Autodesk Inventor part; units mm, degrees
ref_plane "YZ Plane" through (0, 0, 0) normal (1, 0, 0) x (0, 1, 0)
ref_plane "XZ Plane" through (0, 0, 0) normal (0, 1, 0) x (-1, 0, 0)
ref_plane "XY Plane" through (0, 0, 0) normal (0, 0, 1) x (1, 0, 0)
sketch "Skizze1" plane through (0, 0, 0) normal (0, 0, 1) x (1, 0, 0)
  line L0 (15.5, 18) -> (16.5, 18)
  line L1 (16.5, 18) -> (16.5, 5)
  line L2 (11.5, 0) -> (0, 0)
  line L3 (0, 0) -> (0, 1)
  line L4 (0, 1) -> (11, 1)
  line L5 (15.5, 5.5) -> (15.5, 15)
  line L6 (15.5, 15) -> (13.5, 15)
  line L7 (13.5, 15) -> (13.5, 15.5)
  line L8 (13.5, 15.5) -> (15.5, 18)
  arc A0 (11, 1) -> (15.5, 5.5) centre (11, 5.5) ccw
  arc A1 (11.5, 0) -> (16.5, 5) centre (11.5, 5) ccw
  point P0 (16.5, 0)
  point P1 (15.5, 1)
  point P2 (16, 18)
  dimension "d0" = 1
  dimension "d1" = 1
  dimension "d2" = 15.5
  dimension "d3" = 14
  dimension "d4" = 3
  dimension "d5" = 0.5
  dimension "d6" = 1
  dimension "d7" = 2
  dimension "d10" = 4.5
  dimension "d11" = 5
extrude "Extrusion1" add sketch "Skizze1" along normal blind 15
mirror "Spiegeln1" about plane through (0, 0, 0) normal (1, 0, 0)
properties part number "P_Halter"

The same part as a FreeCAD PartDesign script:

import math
import FreeCAD as App
import Part
import Sketcher

V = App.Vector
Q = App.Units.Quantity

doc = App.newDocument("Part")
params = doc.addObject("Spreadsheet::Sheet", "Params")
for row, (alias, value) in enumerate([
    ("sketch1_radius", "5 mm"),
    ("sketch1_radius2", "4.5 mm"),
    ("sketch1_width", "1 mm"),
    ("sketch1_width2", "2 mm"),
    ("sketch1_height", "0.5 mm"),
    ("pad1_length", "15 mm"),
], start=1):
    params.set(f"A{row}", alias)
    params.set(f"B{row}", "=" + value)
    params.setAlias(f"B{row}", alias)

body = doc.addObject("PartDesign::Body", "Body")

sketch1 = body.newObject("Sketcher::SketchObject", "Sketch")
sketch1.AttachmentSupport = (doc.getObject("XY_Plane"), [""])
sketch1.MapMode = "FlatFace"
sketch1.addGeometry(Part.LineSegment(V(16.5, 18, 0), V(15.5, 18, 0)), False)
sketch1.addGeometry(Part.LineSegment(V(15.5, 18, 0), V(13.5, 15.5, 0)), False)
sketch1.addGeometry(Part.LineSegment(V(13.5, 15.5, 0), V(13.5, 15, 0)), False)
sketch1.addGeometry(Part.LineSegment(V(13.5, 15, 0), V(15.5, 15, 0)), False)
sketch1.addGeometry(Part.LineSegment(V(15.5, 15, 0), V(15.5, 5.5, 0)), False)
sketch1.addGeometry(Part.ArcOfCircle(Part.Circle(V(11, 5.5, 0), V(0, 0, 1), 4.5), math.radians(-90), math.radians(0)), False)
sketch1.addGeometry(Part.LineSegment(V(11, 1, 0), V(0, 1, 0)), False)
sketch1.addGeometry(Part.LineSegment(V(0, 1, 0), V(0, 0, 0)), False)
sketch1.addGeometry(Part.LineSegment(V(0, 0, 0), V(11.5, 0, 0)), False)
sketch1.addGeometry(Part.ArcOfCircle(Part.Circle(V(11.5, 5, 0), V(0, 0, 1), 5), math.radians(-90), math.radians(0)), False)
sketch1.addGeometry(Part.LineSegment(V(16.5, 5, 0), V(16.5, 18, 0)), False)
sketch1.addConstraint(Sketcher.Constraint("Coincident", 0, 2, 1, 1))
sketch1.addConstraint(Sketcher.Constraint("Coincident", 1, 2, 2, 1))
sketch1.addConstraint(Sketcher.Constraint("Coincident", 2, 2, 3, 1))
sketch1.addConstraint(Sketcher.Constraint("Coincident", 3, 2, 4, 1))
sketch1.addConstraint(Sketcher.Constraint("Tangent", 4, 2, 5, 2))
sketch1.addConstraint(Sketcher.Constraint("Tangent", 5, 1, 6, 1))
sketch1.addConstraint(Sketcher.Constraint("Coincident", 6, 2, 7, 1))
sketch1.addConstraint(Sketcher.Constraint("Coincident", 7, 2, 8, 1))
sketch1.addConstraint(Sketcher.Constraint("Tangent", 8, 2, 9, 1))
sketch1.addConstraint(Sketcher.Constraint("Tangent", 9, 2, 10, 1))
sketch1.addConstraint(Sketcher.Constraint("Coincident", 10, 2, 0, 1))
sketch1.addConstraint(Sketcher.Constraint("Horizontal", 0))
sketch1.addConstraint(Sketcher.Constraint("Vertical", 2))
sketch1.addConstraint(Sketcher.Constraint("Horizontal", 3))
sketch1.addConstraint(Sketcher.Constraint("Vertical", 4))
sketch1.addConstraint(Sketcher.Constraint("Horizontal", 6))
sketch1.addConstraint(Sketcher.Constraint("Vertical", 7))
sketch1.addConstraint(Sketcher.Constraint("Horizontal", 8))
sketch1.addConstraint(Sketcher.Constraint("Vertical", 10))
sketch1.addConstraint(Sketcher.Constraint("Coincident", 7, 2, -1, 1))
sketch1.addConstraint(Sketcher.Constraint("Vertical", 0, 2, 3, 2))
sketch1.addConstraint(Sketcher.Constraint("Equal", 0, 7))
sketch1.addConstraint(Sketcher.Constraint("Radius", 9, Q("5 mm")))
sketch1.addConstraint(Sketcher.Constraint("Radius", 5, Q("4.5 mm")))
sketch1.addConstraint(Sketcher.Constraint("DistanceX", 0, 2, 0, 1, Q("1 mm")))
sketch1.addConstraint(Sketcher.Constraint("DistanceX", 3, 1, 3, 2, Q("2 mm")))
sketch1.addConstraint(Sketcher.Constraint("DistanceY", 2, 2, 2, 1, Q("0.5 mm")))
sketch1.addConstraint(Sketcher.Constraint("DistanceY", 2, 2, 0, 2, Q("3 mm")))
sketch1.addConstraint(Sketcher.Constraint("DistanceY", 5, 1, 2, 2, Q("14 mm")))
sketch1.addConstraint(Sketcher.Constraint("DistanceX", -1, 1, 0, 2, Q("15.5 mm")))
sketch1.setExpression("Constraints[22]", "Params.sketch1_radius")
sketch1.setExpression("Constraints[23]", "Params.sketch1_radius2")
sketch1.setExpression("Constraints[24]", "Params.sketch1_width")
sketch1.setExpression("Constraints[25]", "Params.sketch1_width2")
sketch1.setExpression("Constraints[26]", "Params.sketch1_height")
pad1 = body.newObject("PartDesign::Pad", "Pad")
pad1.Profile = sketch1
pad1.setExpression("Length", "Params.pad1_length")
doc.recompute()

mirrored = body.newObject("PartDesign::Mirrored", "Mirrored")
mirrored.TransformMode = "Transform body"
mirrored.MirrorPlane = (doc.getObject("YZ_Plane"), [""])
body.Tip = mirrored

doc.recompute()
